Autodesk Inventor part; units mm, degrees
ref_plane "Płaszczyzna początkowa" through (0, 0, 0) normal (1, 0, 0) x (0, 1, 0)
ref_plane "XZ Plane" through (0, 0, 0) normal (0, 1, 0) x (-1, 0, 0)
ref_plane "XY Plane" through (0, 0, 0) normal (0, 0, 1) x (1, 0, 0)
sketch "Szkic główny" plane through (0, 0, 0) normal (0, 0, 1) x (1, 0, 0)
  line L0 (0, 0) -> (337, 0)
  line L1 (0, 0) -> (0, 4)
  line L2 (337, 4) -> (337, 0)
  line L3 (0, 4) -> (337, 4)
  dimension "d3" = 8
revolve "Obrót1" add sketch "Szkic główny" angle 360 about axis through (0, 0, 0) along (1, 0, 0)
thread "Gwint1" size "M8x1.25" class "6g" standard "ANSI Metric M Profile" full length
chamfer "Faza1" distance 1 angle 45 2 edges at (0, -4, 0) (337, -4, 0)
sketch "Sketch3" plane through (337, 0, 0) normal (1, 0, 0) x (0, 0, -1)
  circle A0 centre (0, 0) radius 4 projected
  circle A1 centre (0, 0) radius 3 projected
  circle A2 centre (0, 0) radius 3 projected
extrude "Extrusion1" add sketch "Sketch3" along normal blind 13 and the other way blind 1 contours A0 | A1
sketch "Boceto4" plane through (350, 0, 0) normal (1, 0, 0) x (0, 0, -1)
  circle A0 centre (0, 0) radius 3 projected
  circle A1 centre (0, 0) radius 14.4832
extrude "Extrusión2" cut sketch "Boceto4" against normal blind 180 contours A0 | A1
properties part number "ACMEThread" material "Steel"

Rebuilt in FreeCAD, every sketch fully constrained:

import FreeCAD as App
import Part
import Sketcher


def edges_at(feature, points):
    """Names of the edges that pass closest to the given points."""
    edges = feature.Shape.Edges
    near = lambda p: min(range(len(edges)), key=lambda i: edges[i].distToShape(Part.Vertex(*p))[0])
    return sorted({f"Edge{near(p) + 1}" for p in points})


def add_polygon(sketch, points):
    """Adds a closed chain of lines whose ends are joined by coincident constraints."""
    first, n = sketch.GeometryCount, len(points)
    for a, b in zip(points, points[1:] + points[:1]):
        sketch.addGeometry(Part.LineSegment(App.Vector(*a, 0), App.Vector(*b, 0)), False)
    for i in range(n):
        sketch.addConstraint(Sketcher.Constraint("Coincident", first + i, 2, first + (i + 1) % n, 1))

doc = App.newDocument("Part")
body = doc.addObject("PartDesign::Body", "Body")

sketch1 = body.newObject("Sketcher::SketchObject", "Sketch")
sketch1.AttachmentSupport = (doc.getObject("XY_Plane"), [""])
sketch1.MapMode = "FlatFace"
add_polygon(sketch1, [(0, 4), (0, 0), (337, 0), (337, 4)])
sketch1.addConstraint(Sketcher.Constraint("Vertical", 0))
sketch1.addConstraint(Sketcher.Constraint("Horizontal", 1))
sketch1.addConstraint(Sketcher.Constraint("Vertical", 2))
sketch1.addConstraint(Sketcher.Constraint("Horizontal", 3))
sketch1.addConstraint(Sketcher.Constraint("Coincident", 0, 2, -1, 1))
sketch1.addConstraint(Sketcher.Constraint("DistanceX", 1, 1, 1, 2, 337.0))
sketch1.addConstraint(Sketcher.Constraint("DistanceY", 0, 2, 0, 1, 4.0))
revolution = body.newObject("PartDesign::Revolution", "Revolution")
revolution.Profile = sketch1
revolution.ReferenceAxis = (sketch1, ["H_Axis"])
revolution.Angle = 360
doc.recompute()

chamfer = body.newObject("PartDesign::Chamfer", "Chamfer")
chamfer.Base = (revolution, edges_at(revolution, [(0, -4, 0), (337, -4, 0)]))
chamfer.Size = 1

sketch2 = body.newObject("Sketcher::SketchObject", "Sketch001")
sketch2.AttachmentSupport = (doc.getObject("YZ_Plane"), [""])
sketch2.MapMode = "FlatFace"
sketch2.AttachmentOffset = App.Placement(App.Vector(0, 0, 337), App.Rotation())
sketch2.addGeometry(Part.Circle(App.Vector(0, 0, 0), App.Vector(0, 0, 1), 4), False)
sketch2.addConstraint(Sketcher.Constraint("Coincident", 0, 3, -1, 1))
sketch2.addConstraint(Sketcher.Constraint("Diameter", 0, 8.0))
pad1 = body.newObject("PartDesign::Pad", "Pad")
pad1.Profile = sketch2
pad1.Type = "TwoLengths"
pad1.Length = 13
pad1.Length2 = 1

sketch3 = body.newObject("Sketcher::SketchObject", "Sketch002")
sketch3.AttachmentSupport = (doc.getObject("YZ_Plane"), [""])
sketch3.MapMode = "FlatFace"
sketch3.AttachmentOffset = App.Placement(App.Vector(0, 0, 350), App.Rotation())
sketch3.addGeometry(Part.Circle(App.Vector(0, 0, 0), App.Vector(0, 0, 1), 14), False)
sketch3.addConstraint(Sketcher.Constraint("Coincident", 0, 3, -1, 1))
sketch3.addConstraint(Sketcher.Constraint("Diameter", 0, 28.9664))
pocket1 = body.newObject("PartDesign::Pocket", "Pocket")
pocket1.Profile = sketch3
pocket1.Length = 180

doc.recompute()
